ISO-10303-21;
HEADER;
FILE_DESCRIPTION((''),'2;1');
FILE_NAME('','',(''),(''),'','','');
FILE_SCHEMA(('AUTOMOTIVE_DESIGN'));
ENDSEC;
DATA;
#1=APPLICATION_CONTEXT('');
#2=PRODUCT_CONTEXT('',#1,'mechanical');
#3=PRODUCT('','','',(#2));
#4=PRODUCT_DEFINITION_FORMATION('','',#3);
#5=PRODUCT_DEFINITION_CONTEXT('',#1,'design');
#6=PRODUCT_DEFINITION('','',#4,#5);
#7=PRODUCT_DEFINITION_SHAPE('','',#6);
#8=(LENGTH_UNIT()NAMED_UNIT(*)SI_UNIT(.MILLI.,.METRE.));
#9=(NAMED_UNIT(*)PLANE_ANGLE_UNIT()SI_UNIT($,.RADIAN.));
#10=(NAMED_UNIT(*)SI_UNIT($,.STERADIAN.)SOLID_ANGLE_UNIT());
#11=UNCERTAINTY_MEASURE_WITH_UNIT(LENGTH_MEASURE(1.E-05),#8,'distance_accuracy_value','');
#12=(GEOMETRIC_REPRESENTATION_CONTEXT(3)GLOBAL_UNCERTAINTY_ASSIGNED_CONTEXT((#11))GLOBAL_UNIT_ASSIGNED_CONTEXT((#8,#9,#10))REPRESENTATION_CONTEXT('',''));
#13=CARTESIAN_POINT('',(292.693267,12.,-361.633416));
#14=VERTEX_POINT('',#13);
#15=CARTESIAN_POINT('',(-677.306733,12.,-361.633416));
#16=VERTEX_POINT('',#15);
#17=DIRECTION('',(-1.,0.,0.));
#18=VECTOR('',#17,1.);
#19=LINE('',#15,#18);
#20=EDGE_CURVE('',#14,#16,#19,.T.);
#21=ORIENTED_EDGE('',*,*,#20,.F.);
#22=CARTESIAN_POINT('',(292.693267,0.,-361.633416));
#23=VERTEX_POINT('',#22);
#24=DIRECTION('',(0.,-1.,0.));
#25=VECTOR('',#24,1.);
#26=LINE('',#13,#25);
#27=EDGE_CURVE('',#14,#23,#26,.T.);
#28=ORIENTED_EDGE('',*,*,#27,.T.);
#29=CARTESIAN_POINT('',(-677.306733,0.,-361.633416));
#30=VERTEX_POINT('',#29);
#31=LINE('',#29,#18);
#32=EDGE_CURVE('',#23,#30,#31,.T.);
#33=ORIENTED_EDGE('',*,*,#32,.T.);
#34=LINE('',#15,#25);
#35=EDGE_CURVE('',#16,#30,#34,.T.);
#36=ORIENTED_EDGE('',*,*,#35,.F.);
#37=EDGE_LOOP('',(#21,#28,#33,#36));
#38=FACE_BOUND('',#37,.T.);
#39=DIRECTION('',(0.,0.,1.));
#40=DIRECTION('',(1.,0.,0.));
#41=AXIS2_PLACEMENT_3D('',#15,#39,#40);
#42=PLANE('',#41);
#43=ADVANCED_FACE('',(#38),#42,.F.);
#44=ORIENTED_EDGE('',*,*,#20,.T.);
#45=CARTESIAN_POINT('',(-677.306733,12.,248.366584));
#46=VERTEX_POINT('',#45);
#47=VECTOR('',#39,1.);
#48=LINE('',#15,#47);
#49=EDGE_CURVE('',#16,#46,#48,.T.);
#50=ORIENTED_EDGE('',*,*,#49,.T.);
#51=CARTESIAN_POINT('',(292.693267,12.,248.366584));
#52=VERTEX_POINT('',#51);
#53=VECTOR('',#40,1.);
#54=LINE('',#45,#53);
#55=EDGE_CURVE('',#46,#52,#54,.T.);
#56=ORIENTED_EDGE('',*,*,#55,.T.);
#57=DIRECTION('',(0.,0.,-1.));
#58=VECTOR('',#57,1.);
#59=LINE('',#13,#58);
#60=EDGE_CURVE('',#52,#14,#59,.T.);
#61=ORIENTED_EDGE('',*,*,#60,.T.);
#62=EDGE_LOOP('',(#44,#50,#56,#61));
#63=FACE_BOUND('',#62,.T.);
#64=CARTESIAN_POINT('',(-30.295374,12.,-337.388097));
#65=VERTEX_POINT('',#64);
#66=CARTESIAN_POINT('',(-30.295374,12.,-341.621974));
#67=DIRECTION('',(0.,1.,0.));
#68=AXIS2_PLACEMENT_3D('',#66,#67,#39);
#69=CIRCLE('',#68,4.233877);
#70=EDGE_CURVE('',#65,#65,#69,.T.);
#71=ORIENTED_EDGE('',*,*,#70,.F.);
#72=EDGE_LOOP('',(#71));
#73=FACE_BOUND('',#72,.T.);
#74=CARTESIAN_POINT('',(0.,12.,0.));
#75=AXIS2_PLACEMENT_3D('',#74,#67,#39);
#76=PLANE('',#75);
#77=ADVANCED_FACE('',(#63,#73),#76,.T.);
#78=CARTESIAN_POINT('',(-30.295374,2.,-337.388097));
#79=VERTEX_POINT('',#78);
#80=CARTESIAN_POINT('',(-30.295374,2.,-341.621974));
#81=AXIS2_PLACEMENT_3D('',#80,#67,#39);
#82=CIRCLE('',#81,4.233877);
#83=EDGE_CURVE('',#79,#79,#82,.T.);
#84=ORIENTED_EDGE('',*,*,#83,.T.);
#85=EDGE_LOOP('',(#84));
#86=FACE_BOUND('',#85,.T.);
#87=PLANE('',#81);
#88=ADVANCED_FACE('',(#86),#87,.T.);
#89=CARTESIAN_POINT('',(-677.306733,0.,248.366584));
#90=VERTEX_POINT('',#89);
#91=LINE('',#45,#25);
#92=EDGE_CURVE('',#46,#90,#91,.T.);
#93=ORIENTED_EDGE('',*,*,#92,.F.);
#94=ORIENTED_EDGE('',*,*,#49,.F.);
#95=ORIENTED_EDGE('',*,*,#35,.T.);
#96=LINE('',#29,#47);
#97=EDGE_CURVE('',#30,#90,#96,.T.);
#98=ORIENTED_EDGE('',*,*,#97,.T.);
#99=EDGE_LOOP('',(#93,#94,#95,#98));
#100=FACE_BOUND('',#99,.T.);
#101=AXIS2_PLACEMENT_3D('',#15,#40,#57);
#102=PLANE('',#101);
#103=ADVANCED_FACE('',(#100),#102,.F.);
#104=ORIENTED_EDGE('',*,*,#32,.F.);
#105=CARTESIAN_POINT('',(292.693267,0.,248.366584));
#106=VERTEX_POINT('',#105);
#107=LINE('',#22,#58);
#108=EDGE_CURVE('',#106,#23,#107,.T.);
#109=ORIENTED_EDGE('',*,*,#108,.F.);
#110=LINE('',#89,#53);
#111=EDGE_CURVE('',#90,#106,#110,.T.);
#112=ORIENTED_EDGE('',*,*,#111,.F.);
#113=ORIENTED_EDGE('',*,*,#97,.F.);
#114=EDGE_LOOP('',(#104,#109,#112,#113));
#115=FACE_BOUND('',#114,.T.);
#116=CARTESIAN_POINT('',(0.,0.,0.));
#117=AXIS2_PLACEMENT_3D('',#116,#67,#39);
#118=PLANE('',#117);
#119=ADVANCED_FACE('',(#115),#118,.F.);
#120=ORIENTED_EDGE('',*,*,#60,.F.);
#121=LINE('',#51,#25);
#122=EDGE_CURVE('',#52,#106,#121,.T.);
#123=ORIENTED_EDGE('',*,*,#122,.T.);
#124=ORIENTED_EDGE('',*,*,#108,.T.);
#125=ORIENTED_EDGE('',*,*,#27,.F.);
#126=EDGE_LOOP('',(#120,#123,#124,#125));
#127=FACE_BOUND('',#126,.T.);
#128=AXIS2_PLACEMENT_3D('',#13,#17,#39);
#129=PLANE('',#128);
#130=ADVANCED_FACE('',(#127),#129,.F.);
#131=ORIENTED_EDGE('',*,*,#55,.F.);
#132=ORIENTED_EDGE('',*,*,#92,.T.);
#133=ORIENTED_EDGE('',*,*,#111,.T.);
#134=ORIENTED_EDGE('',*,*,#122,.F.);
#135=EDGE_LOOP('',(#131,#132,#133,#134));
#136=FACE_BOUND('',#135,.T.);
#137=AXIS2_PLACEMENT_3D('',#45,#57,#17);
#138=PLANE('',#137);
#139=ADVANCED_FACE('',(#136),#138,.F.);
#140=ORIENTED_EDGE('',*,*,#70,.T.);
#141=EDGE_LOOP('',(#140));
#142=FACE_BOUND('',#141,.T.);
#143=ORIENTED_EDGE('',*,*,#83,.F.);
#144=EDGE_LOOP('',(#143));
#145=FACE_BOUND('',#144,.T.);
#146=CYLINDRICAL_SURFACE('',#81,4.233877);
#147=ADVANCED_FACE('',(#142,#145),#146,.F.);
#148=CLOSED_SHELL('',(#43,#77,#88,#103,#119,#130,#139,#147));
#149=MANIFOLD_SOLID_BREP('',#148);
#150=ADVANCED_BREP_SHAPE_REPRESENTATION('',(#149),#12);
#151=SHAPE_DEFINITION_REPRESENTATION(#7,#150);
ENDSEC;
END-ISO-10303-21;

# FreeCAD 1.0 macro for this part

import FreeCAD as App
import Part
import Sketcher
from FreeCAD import Vector


def add_polygon(sketch, points):
    """Adds a closed chain of lines whose ends are joined by coincident constraints."""
    first, n = sketch.GeometryCount, len(points)
    for a, b in zip(points, points[1:] + points[:1]):
        sketch.addGeometry(Part.LineSegment(App.Vector(*a, 0), App.Vector(*b, 0)), False)
    for i in range(n):
        sketch.addConstraint(Sketcher.Constraint("Coincident", first + i, 2, first + (i + 1) % n, 1))

doc = App.newDocument("Part")
body = doc.addObject("PartDesign::Body", "Body")

# Sketch on XZ plane
sketch1 = doc.addObject("Sketcher::SketchObject", "Sketch")
body.addObject(sketch1)
sketch1.AttachmentSupport = (doc.XZ_Plane, [""])
sketch1.MapMode = "FlatFace"
add_polygon(sketch1, [(-677, -362), (-677, 248), (293, 248), (293, -362)])  # lines 0-3
sketch1.addConstraint([
    Sketcher.Constraint("Vertical", 0),
    Sketcher.Constraint("Horizontal", 1),
    Sketcher.Constraint("Vertical", 2),
    Sketcher.Constraint("Horizontal", 3),
    Sketcher.Constraint("DistanceX", 1, 1, 1, 2, 970.0),
    Sketcher.Constraint("DistanceY", 0, 1, 0, 2, 610.0),
    Sketcher.Constraint("DistanceX", 0, 2, -1, 1, 677.306733),
    Sketcher.Constraint("DistanceY", -1, 1, 0, 2, 248.366584),
])
pad1 = doc.addObject("PartDesign::Pad", "Pad")
body.addObject(pad1)
pad1.Profile = sketch1
pad1.Length = 12
pad1.Reversed = True

# Sketch on XZ plane
sketch2 = doc.addObject("Sketcher::SketchObject", "Sketch001")
body.addObject(sketch2)
sketch2.AttachmentSupport = (doc.XZ_Plane, [""])
sketch2.MapMode = "FlatFace"
sketch2.AttachmentOffset = App.Placement(Vector(0, 0, -12), App.Rotation())
sketch2.addGeometry(Part.Circle(Vector(-30.3, -341.6, 0), Vector(0, 0, 1), 4.2), False)
sketch2.addConstraint([
    Sketcher.Constraint("Diameter", 0, 8.467754),
    Sketcher.Constraint("DistanceX", 0, 3, -1, 1, 30.295374),
    Sketcher.Constraint("DistanceY", 0, 3, -1, 1, 341.621974),
])
pocket1 = doc.addObject("PartDesign::Pocket", "Pocket")
body.addObject(pocket1)
pocket1.Profile = sketch2
pocket1.Length = 10
pocket1.Reversed = True

doc.recompute()
